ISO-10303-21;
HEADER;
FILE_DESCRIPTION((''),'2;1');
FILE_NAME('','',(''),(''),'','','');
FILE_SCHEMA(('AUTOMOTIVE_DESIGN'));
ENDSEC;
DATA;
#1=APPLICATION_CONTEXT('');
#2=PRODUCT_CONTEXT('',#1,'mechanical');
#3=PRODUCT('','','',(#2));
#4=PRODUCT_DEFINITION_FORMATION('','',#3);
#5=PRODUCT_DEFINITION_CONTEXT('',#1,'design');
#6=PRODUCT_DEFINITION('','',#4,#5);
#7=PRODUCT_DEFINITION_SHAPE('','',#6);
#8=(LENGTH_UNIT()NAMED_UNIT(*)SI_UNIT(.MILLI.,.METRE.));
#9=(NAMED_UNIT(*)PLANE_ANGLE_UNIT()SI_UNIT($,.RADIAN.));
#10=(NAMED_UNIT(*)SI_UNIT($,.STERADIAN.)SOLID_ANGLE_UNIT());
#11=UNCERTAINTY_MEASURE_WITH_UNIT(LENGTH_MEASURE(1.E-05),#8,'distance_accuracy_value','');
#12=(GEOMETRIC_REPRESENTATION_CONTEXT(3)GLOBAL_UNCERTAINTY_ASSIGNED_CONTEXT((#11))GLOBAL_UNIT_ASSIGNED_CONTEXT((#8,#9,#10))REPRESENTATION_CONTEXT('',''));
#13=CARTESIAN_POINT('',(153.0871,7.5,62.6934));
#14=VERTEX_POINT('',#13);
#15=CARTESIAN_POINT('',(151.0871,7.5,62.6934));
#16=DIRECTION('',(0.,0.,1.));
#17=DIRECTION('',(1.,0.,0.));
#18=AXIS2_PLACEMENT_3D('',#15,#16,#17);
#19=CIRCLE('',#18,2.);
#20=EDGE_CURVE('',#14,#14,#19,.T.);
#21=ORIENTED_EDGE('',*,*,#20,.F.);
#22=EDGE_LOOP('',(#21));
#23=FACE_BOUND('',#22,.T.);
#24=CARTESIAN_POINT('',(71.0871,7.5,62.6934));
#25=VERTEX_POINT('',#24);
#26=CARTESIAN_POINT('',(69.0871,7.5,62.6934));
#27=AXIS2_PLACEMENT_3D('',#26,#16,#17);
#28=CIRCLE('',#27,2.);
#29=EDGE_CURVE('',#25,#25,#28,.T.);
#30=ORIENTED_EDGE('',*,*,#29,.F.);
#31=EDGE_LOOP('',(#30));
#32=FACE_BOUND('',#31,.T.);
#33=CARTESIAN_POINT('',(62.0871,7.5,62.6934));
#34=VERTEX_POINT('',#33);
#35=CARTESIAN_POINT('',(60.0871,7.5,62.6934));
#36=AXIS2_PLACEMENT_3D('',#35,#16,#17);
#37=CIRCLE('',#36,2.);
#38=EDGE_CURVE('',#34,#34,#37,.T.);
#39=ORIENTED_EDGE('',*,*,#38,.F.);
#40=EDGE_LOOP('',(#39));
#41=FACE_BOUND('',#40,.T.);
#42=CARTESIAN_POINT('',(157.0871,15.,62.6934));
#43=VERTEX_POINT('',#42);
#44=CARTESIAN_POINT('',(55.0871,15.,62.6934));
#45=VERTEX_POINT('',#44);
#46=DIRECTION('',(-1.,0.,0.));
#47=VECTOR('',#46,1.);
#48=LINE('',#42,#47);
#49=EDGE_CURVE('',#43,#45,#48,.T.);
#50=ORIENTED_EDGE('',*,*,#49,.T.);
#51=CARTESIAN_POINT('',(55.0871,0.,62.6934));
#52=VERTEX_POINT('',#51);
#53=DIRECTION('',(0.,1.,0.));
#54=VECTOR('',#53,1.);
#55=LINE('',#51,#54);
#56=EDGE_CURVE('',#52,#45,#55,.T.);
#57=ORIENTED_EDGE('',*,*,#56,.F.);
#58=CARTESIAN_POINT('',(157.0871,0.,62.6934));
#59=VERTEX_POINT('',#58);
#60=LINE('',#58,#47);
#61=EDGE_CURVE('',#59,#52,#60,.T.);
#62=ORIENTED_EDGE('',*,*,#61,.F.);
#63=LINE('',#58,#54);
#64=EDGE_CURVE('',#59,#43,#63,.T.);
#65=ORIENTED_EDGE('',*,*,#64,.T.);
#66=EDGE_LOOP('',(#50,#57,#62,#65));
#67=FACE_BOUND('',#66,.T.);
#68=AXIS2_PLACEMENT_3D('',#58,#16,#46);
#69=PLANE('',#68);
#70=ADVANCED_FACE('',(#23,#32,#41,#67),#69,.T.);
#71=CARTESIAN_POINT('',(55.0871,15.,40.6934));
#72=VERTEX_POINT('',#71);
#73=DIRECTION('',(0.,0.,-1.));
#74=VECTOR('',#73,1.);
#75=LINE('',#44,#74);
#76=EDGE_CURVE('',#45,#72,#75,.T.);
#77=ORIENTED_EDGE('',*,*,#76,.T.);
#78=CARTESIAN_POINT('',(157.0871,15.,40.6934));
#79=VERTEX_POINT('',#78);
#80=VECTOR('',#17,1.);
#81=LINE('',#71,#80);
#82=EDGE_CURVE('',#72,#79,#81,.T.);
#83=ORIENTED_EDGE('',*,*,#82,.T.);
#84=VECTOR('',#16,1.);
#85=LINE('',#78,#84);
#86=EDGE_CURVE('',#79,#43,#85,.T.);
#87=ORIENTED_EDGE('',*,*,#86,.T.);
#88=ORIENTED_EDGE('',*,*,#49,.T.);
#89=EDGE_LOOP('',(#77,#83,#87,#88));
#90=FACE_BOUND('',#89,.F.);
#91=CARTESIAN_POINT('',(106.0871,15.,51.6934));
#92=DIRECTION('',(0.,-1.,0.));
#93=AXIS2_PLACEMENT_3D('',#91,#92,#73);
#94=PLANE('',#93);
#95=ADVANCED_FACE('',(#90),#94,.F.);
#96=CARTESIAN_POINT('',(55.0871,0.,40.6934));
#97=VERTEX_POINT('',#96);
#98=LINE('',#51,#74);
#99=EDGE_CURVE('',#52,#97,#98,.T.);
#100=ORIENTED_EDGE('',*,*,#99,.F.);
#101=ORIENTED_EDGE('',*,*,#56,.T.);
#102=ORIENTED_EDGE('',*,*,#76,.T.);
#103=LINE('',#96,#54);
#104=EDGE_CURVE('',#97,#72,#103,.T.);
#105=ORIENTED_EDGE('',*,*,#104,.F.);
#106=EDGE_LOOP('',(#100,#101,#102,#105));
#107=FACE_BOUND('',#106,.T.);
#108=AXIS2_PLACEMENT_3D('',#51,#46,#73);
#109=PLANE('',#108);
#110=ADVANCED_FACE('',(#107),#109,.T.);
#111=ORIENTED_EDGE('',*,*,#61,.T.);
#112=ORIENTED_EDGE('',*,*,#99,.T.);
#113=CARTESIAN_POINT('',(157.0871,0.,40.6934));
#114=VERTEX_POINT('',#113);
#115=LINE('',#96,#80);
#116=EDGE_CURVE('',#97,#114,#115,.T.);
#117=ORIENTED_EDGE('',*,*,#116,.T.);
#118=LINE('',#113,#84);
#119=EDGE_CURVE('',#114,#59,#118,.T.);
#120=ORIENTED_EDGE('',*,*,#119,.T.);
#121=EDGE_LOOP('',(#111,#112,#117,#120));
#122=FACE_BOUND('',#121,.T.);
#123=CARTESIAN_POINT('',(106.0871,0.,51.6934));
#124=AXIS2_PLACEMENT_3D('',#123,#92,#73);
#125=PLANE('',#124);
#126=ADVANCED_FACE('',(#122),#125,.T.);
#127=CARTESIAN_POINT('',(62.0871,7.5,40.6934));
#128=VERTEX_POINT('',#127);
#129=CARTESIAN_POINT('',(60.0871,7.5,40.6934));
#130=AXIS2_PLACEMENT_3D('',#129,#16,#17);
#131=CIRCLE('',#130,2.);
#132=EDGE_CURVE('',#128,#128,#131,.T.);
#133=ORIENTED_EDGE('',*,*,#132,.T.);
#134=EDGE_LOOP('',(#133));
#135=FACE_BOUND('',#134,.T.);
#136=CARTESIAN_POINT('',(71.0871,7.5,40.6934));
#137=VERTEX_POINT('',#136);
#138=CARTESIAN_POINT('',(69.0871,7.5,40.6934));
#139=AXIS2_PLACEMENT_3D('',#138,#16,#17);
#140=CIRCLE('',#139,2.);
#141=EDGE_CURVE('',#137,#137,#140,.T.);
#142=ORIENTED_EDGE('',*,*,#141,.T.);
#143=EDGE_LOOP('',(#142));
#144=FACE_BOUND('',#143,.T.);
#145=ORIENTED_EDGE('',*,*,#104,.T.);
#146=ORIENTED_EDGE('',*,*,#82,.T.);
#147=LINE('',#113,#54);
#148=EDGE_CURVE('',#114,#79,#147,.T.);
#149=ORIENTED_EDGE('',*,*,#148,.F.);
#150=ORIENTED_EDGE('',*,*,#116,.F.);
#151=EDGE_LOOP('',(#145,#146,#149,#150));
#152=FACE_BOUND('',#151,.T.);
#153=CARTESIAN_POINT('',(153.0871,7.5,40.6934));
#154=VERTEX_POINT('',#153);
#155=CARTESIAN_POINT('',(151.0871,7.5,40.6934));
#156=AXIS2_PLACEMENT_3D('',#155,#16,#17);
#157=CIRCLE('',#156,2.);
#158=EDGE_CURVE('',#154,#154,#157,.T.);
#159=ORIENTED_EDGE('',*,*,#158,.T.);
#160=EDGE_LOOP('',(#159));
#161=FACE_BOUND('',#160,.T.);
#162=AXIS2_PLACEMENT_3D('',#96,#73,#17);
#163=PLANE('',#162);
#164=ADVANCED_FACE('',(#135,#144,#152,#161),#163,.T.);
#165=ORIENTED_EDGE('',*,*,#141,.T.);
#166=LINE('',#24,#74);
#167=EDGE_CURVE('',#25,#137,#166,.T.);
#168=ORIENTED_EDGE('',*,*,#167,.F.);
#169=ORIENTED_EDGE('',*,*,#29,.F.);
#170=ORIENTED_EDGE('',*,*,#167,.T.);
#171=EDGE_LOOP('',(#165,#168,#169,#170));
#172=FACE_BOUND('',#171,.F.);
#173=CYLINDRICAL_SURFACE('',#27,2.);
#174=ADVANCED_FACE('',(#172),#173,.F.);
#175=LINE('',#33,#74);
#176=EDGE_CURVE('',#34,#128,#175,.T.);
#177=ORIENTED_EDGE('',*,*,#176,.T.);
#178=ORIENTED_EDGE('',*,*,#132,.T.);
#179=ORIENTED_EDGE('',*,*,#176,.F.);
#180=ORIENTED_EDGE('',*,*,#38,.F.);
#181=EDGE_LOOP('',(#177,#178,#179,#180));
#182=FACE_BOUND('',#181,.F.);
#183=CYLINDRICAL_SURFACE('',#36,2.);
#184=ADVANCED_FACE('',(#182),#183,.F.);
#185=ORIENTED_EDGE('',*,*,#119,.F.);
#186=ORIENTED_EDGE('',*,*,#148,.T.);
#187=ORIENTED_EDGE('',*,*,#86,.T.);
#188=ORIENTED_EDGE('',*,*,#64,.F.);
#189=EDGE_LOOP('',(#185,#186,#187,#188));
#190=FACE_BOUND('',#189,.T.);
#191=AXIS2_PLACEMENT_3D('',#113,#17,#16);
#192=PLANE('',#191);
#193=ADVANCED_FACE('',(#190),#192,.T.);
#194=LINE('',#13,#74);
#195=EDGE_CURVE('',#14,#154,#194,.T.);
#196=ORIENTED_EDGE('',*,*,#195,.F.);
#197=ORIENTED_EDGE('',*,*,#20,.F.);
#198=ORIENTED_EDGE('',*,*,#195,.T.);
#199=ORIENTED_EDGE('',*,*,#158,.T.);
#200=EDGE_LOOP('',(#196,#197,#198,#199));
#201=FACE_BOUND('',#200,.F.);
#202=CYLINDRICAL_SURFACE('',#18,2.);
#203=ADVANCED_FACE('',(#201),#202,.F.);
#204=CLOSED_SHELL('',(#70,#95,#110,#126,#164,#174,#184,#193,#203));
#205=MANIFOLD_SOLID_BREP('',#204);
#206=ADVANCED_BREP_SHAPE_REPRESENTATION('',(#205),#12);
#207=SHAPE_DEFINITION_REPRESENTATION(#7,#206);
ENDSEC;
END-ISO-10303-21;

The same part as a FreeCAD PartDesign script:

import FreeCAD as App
import Part
import Sketcher
from FreeCAD import Vector

doc = App.newDocument("Part")
params = doc.addObject("Spreadsheet::Sheet", "Params")
for row, (alias, value) in enumerate([
    ("sketch1_width", "102 mm"),
    ("sketch1_height", "22 mm"),
    ("pad1_length", "15 mm"),
    ("sketch2_diameter", "4 mm"),
], start=1):
    params.set(f"A{row}", alias)
    params.set(f"B{row}", "=" + value)
    params.setAlias(f"B{row}", alias)

body = doc.addObject("PartDesign::Body", "Body")

sketch1 = doc.addObject("Sketcher::SketchObject", "Sketch")
body.addObject(sketch1)
sketch1.AttachmentSupport = (doc.XZ_Plane, [""])
sketch1.MapMode = "FlatFace"
sketch1.addGeometry(Part.LineSegment(Vector(157, 63, 0), Vector(55, 63, 0)), False)
sketch1.addGeometry(Part.LineSegment(Vector(55, 63, 0), Vector(55, 41, 0)), False)
sketch1.addGeometry(Part.LineSegment(Vector(55, 41, 0), Vector(157, 41, 0)), False)
sketch1.addGeometry(Part.LineSegment(Vector(157, 41, 0), Vector(157, 63, 0)), False)
sketch1.addConstraint(Sketcher.Constraint("Coincident", 0, 2, 1, 1))
sketch1.addConstraint(Sketcher.Constraint("Coincident", 1, 2, 2, 1))
sketch1.addConstraint(Sketcher.Constraint("Coincident", 2, 2, 3, 1))
sketch1.addConstraint(Sketcher.Constraint("Coincident", 3, 2, 0, 1))
sketch1.addConstraint(Sketcher.Constraint("Horizontal", 0))
sketch1.addConstraint(Sketcher.Constraint("Vertical", 1))
sketch1.addConstraint(Sketcher.Constraint("Horizontal", 2))
sketch1.addConstraint(Sketcher.Constraint("Vertical", 3))
sketch1.addConstraint(Sketcher.Constraint("DistanceX", 0, 2, 0, 1, 102.0))
sketch1.addConstraint(Sketcher.Constraint("DistanceY", 1, 2, 1, 1, 22.0))
sketch1.addConstraint(Sketcher.Constraint("DistanceX", -1, 1, 0, 2, 55.087))
sketch1.addConstraint(Sketcher.Constraint("DistanceY", -1, 1, 0, 2, 62.6934))
sketch1.setExpression("Constraints[8]", "Params.sketch1_width")
sketch1.setExpression("Constraints[9]", "Params.sketch1_height")
pad1 = doc.addObject("PartDesign::Pad", "Pad")
body.addObject(pad1)
pad1.Profile = sketch1
pad1.setExpression("Length", "Params.pad1_length")
pad1.Reversed = True

sketch2 = doc.addObject("Sketcher::SketchObject", "Sketch001")
body.addObject(sketch2)
sketch2.AttachmentSupport = (doc.XY_Plane, [""])
sketch2.MapMode = "FlatFace"
sketch2.AttachmentOffset = App.Placement(Vector(0, 0, 62.6934), App.Rotation())
sketch2.addGeometry(Part.Circle(Vector(60.1, 7.5, 0), Vector(0, 0, 1), 2), False)
sketch2.addGeometry(Part.Circle(Vector(69.1, 7.5, 0), Vector(0, 0, 1), 2), False)
sketch2.addGeometry(Part.Circle(Vector(151.1, 7.5, 0), Vector(0, 0, 1), 2), False)
sketch2.addConstraint(Sketcher.Constraint("Equal", 0, 1))
sketch2.addConstraint(Sketcher.Constraint("Equal", 1, 2))
sketch2.addConstraint(Sketcher.Constraint("Horizontal", 0, 3, 1, 3))
sketch2.addConstraint(Sketcher.Constraint("Horizontal", 1, 3, 2, 3))
sketch2.addConstraint(Sketcher.Constraint("Diameter", 0, 4.0))
sketch2.addConstraint(Sketcher.Constraint("DistanceX", 0, 3, 1, 3, 9.0))
sketch2.addConstraint(Sketcher.Constraint("DistanceX", 1, 3, 2, 3, 82.0))
sketch2.addConstraint(Sketcher.Constraint("DistanceY", -1, 1, 0, 3, 7.5))
sketch2.addConstraint(Sketcher.Constraint("DistanceX", -1, 1, 0, 3, 60.087))
sketch2.setExpression("Constraints[4]", "Params.sketch2_diameter")
pocket1 = doc.addObject("PartDesign::Pocket", "Pocket")
body.addObject(pocket1)
pocket1.Profile = sketch2
pocket1.Type = "ThroughAll"

doc.recompute()
